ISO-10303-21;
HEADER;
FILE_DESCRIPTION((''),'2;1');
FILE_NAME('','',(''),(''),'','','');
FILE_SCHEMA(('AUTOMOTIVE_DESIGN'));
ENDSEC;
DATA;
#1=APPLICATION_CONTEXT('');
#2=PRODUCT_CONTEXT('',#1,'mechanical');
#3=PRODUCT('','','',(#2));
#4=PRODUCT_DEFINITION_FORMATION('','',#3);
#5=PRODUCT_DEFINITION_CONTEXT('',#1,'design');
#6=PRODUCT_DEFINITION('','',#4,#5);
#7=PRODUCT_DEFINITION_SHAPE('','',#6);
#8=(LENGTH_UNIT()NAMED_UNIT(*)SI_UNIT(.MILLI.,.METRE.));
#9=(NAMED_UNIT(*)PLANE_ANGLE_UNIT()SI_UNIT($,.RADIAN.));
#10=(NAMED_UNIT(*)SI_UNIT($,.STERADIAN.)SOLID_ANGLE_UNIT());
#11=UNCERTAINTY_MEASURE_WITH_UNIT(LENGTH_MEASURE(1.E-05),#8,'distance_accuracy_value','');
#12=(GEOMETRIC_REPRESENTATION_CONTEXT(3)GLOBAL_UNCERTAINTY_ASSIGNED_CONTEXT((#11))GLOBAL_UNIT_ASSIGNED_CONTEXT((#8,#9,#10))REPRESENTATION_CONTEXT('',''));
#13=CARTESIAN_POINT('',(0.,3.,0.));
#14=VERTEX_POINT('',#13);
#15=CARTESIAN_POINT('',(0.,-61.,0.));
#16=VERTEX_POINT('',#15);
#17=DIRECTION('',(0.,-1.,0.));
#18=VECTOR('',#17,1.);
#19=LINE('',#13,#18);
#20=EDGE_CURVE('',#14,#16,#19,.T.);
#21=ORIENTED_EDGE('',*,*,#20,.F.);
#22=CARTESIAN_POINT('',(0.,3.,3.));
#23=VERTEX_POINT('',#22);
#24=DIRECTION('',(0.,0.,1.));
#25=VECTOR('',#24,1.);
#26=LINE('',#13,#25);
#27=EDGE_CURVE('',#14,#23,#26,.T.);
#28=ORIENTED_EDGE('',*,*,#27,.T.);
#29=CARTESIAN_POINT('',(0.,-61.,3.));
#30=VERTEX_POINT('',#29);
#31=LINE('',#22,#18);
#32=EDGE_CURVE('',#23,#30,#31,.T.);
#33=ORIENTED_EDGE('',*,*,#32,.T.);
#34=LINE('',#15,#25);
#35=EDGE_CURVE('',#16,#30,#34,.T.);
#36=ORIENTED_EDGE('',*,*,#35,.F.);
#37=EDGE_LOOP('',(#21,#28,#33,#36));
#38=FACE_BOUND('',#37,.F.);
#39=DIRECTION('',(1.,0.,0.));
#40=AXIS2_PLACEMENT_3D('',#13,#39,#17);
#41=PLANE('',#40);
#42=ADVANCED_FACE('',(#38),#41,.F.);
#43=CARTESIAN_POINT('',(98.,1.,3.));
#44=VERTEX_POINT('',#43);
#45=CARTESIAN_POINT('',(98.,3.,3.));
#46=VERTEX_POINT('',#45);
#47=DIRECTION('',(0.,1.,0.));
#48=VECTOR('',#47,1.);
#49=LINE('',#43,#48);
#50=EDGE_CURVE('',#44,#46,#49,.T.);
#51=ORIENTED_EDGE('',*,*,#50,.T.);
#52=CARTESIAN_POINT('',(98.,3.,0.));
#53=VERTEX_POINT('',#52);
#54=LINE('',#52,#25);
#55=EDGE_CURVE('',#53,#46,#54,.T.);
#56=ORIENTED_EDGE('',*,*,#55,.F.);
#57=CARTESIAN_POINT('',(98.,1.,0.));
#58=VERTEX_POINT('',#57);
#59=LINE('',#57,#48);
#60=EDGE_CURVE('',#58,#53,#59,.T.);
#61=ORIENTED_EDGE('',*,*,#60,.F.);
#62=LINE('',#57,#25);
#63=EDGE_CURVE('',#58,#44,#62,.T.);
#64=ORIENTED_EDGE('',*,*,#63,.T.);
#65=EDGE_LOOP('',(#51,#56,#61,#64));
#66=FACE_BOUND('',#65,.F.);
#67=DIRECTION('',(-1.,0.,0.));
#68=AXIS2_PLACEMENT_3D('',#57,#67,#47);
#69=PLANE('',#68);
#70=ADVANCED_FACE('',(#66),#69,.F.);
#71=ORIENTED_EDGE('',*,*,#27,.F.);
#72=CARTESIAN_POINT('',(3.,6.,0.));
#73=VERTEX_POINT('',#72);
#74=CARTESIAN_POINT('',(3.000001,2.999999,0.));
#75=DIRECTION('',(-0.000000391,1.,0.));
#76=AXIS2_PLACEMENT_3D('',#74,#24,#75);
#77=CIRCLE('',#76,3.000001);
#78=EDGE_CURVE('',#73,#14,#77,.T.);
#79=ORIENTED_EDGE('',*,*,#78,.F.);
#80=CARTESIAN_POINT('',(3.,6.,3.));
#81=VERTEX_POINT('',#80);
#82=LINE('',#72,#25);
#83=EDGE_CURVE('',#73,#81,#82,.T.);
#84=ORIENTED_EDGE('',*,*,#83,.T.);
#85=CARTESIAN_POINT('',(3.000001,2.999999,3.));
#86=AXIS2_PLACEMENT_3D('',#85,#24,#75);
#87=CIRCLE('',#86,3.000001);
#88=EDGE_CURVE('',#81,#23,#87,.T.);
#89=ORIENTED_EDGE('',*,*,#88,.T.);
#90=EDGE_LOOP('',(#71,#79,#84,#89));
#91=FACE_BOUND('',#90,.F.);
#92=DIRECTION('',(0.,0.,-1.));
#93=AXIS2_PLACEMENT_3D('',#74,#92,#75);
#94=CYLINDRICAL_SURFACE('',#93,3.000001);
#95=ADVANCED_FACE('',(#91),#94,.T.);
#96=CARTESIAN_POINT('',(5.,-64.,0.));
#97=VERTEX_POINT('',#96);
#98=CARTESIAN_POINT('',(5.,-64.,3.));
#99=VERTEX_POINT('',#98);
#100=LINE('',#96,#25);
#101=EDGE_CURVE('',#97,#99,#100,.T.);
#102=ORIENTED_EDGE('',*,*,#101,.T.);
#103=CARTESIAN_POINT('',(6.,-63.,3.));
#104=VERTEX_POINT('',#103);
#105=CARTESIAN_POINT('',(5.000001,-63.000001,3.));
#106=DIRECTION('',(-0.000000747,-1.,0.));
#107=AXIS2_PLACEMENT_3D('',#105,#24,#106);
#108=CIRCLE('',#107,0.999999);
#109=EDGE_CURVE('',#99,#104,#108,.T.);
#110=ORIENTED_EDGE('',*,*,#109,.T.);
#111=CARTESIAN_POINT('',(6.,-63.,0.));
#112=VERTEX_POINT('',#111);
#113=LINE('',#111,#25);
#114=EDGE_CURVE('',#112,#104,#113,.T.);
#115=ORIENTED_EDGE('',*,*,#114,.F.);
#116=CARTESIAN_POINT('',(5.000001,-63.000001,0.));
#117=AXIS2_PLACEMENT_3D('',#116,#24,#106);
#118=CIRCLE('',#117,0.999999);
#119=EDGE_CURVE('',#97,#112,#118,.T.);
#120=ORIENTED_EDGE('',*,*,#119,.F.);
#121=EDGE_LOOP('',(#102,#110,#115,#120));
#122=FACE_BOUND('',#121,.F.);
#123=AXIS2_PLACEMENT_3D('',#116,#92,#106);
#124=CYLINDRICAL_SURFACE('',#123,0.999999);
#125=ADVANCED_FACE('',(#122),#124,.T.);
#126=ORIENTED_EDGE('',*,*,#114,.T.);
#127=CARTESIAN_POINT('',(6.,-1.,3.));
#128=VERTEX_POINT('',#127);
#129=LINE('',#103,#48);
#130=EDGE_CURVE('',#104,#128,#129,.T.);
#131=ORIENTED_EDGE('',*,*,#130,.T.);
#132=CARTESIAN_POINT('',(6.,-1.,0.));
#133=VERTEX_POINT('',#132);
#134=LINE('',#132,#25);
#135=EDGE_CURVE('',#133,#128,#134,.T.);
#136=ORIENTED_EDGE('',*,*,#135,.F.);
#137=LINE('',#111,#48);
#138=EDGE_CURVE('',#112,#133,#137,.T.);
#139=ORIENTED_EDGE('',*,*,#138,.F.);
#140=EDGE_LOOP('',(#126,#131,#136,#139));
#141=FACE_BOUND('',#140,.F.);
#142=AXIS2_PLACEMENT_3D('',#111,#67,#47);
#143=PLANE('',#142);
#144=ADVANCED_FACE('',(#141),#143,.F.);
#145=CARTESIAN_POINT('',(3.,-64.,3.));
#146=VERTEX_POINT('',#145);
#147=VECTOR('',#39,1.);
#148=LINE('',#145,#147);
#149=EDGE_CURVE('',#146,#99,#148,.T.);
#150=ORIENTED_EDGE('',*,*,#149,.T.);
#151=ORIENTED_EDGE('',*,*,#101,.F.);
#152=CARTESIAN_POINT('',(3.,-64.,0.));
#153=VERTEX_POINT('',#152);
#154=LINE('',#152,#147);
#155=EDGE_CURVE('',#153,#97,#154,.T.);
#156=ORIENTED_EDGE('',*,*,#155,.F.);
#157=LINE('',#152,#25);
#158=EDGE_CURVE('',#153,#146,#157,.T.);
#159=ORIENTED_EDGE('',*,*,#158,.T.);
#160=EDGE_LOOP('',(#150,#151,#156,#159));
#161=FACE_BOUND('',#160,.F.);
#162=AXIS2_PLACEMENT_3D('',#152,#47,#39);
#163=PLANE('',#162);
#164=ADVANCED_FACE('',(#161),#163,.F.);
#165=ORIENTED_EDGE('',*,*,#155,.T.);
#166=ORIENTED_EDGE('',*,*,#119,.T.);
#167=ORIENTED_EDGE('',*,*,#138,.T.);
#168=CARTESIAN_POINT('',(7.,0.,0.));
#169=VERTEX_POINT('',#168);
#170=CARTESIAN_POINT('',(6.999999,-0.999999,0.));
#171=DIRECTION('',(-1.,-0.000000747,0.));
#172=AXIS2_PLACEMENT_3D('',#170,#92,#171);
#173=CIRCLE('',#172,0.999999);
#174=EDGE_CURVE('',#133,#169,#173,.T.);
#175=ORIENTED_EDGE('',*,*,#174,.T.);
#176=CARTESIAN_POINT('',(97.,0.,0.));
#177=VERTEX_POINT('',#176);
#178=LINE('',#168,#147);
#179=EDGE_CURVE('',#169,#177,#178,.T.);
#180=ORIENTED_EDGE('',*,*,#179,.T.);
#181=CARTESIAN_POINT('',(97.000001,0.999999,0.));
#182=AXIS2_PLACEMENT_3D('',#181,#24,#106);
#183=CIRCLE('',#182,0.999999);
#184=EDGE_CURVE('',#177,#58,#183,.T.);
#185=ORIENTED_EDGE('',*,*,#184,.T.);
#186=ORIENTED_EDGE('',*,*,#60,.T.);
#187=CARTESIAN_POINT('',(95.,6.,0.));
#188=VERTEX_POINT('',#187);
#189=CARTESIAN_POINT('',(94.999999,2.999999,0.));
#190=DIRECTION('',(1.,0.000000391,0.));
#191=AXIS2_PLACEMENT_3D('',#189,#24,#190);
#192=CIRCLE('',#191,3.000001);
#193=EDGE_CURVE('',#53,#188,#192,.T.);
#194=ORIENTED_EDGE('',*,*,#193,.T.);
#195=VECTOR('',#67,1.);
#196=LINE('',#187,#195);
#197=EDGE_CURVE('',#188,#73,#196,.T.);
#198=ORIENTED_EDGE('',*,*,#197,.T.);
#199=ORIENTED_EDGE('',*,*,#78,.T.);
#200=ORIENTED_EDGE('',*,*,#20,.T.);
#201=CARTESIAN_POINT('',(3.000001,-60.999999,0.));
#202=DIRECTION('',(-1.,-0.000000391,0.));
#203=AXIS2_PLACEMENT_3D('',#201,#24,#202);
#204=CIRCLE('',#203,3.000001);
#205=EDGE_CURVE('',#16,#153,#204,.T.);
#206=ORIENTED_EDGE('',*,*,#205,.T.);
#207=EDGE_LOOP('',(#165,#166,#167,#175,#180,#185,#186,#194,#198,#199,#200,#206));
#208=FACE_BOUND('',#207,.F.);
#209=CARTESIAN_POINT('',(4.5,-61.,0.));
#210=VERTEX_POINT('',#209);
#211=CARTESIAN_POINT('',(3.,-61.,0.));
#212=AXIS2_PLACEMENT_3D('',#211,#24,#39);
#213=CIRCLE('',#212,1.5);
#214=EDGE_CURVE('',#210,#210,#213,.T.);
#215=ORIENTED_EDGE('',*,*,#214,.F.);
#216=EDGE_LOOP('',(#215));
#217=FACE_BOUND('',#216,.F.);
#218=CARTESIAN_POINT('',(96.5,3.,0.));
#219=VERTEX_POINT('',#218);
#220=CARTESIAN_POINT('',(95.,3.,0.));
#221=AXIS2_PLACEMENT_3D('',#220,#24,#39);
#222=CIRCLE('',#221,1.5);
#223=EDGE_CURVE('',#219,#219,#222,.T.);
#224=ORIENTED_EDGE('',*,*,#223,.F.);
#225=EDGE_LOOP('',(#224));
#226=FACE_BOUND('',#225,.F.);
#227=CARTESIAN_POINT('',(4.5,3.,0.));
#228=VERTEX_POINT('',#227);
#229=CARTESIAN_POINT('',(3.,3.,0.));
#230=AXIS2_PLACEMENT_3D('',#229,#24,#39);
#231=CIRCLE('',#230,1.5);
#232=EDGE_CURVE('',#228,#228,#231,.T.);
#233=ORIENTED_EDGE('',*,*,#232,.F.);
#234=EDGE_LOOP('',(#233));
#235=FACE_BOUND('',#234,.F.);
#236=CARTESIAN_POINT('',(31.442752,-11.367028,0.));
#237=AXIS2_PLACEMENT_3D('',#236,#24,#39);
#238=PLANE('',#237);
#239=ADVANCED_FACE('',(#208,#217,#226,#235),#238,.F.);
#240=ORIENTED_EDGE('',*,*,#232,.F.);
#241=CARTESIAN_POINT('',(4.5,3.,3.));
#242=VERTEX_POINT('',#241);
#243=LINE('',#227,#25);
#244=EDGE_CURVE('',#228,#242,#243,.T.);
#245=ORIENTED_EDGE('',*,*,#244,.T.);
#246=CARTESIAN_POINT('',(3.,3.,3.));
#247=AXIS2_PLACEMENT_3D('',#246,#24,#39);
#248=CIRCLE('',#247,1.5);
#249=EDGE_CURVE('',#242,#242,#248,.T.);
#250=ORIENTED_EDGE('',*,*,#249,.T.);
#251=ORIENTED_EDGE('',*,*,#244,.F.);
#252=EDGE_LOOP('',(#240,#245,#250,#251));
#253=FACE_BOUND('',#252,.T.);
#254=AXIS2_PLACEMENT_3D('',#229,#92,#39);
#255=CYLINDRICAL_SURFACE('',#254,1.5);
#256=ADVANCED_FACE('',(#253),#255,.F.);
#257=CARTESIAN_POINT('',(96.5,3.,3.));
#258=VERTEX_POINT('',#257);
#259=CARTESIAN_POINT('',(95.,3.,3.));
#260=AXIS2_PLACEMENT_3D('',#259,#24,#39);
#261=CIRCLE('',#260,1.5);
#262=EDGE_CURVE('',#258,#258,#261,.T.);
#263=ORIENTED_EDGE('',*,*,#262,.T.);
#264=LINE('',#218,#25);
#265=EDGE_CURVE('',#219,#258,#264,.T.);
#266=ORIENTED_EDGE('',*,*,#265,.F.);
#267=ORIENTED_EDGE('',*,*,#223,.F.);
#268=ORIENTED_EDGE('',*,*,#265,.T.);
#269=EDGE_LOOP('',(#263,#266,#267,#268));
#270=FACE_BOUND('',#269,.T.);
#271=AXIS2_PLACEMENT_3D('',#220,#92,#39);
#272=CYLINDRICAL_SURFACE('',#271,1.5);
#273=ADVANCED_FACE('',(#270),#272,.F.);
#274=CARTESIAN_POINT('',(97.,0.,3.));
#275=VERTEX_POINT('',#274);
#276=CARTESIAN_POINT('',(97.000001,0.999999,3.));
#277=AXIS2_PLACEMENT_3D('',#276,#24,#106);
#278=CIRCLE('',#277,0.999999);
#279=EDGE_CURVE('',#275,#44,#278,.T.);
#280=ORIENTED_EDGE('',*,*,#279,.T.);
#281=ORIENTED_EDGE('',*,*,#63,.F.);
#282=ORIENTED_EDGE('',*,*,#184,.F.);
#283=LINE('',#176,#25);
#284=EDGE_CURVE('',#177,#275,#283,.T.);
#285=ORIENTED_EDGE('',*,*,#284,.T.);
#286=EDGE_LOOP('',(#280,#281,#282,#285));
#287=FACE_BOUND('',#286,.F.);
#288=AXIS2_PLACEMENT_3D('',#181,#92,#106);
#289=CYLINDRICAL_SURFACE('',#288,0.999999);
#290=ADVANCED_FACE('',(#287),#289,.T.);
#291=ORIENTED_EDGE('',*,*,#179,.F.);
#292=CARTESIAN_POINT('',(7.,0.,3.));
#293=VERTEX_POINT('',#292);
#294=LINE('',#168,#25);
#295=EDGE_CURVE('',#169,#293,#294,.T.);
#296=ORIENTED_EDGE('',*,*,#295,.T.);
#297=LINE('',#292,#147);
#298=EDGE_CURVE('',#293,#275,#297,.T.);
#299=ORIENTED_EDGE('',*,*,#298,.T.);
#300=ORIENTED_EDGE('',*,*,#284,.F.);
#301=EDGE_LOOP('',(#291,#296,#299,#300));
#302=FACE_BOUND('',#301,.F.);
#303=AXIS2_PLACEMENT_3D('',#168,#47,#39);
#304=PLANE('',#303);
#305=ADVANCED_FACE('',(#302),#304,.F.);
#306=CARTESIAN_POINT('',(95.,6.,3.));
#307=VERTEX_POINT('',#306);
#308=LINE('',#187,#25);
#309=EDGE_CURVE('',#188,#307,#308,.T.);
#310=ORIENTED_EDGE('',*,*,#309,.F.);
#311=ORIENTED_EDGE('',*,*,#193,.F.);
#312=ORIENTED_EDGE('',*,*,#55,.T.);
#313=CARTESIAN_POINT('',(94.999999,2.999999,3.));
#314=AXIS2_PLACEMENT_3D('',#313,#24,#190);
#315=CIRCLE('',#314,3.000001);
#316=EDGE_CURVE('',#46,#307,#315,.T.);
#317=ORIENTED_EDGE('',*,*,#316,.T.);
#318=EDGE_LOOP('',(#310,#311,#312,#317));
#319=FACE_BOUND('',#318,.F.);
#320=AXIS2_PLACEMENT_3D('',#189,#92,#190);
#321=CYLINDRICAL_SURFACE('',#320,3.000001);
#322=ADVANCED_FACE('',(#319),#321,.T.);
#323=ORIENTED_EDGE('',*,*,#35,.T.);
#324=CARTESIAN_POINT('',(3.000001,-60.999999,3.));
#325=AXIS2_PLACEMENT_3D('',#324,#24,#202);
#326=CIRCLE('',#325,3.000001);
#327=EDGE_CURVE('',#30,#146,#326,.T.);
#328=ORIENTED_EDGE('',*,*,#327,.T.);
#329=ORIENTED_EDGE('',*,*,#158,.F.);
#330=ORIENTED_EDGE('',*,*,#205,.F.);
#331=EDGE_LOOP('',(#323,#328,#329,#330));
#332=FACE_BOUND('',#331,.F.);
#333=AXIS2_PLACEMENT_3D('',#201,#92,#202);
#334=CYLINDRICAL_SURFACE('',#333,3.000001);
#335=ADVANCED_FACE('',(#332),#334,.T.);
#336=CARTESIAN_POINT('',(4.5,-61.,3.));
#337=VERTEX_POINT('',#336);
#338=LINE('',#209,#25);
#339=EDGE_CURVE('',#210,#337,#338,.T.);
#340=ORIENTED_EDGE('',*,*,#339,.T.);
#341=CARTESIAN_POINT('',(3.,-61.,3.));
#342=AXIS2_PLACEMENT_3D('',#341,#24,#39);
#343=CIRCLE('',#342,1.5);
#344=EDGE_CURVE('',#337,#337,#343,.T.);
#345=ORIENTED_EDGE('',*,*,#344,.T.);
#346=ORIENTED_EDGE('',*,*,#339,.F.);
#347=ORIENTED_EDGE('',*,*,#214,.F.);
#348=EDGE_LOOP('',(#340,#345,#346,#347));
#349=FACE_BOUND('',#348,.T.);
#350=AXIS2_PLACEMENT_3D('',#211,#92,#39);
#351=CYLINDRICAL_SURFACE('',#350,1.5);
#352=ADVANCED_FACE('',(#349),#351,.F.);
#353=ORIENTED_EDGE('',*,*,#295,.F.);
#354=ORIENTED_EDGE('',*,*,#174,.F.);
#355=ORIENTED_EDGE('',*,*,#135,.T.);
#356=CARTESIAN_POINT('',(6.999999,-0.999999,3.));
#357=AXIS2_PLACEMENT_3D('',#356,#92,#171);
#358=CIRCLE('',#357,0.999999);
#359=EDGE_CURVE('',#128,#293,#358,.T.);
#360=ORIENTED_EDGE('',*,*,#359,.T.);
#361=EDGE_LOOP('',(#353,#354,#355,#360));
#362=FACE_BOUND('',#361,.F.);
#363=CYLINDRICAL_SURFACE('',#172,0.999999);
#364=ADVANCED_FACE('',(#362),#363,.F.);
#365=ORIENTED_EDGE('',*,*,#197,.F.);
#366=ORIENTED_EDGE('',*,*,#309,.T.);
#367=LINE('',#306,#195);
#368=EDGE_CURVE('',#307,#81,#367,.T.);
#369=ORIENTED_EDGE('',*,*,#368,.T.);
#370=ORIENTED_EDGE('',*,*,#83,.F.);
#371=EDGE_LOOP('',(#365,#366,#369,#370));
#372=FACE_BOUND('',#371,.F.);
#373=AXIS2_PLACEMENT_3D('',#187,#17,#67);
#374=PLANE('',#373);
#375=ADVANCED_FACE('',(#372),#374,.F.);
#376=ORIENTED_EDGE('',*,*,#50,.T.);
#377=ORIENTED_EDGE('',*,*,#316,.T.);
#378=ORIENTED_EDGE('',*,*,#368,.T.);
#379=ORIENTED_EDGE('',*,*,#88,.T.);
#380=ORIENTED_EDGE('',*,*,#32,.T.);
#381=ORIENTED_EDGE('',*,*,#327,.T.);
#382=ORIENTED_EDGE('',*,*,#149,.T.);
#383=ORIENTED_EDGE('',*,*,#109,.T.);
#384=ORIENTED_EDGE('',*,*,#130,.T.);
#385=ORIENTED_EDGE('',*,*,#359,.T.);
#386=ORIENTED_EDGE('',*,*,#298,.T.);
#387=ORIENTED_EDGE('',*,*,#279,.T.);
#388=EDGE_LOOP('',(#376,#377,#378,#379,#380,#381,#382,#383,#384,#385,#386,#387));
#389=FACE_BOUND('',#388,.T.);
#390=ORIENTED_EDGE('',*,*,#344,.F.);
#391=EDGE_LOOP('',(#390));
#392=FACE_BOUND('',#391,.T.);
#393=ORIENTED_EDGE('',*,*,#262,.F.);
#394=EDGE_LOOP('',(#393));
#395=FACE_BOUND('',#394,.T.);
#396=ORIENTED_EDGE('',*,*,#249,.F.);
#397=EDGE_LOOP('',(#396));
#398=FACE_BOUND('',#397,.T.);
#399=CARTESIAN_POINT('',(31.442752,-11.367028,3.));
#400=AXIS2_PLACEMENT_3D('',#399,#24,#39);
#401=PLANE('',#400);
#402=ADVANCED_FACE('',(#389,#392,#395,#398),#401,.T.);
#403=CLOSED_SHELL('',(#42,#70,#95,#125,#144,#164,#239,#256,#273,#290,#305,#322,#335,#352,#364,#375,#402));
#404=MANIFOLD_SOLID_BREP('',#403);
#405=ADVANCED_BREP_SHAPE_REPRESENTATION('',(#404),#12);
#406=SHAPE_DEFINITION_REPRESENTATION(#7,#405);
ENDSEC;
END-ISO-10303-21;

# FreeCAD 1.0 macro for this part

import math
import FreeCAD as App
import Part
import Sketcher
Q = App.Units.Quantity

doc = App.newDocument("Part")
body = doc.addObject("PartDesign::Body", "Body")

# Sketch on XY plane
sketch1 = body.newObject("Sketcher::SketchObject", "Sketch")
sketch1.AttachmentSupport = (doc.getObject("XY_Plane"), [""])
sketch1.MapMode = "FlatFace"
sketch1.addGeometry([
    Part.ArcOfCircle(Part.Circle(App.Vector(7, -1, 0), App.Vector(0, 0, 1), 1), math.radians(90), math.radians(180)),  # 0
    Part.LineSegment(App.Vector(7, 0, 0), App.Vector(97, 0, 0)),  # 1
    Part.ArcOfCircle(Part.Circle(App.Vector(97, 1, 0), App.Vector(0, 0, 1), 1), math.radians(-90), math.radians(0)),  # 2
    Part.LineSegment(App.Vector(98, 1, 0), App.Vector(98, 3, 0)),  # 3
    Part.ArcOfCircle(Part.Circle(App.Vector(95, 3, 0), App.Vector(0, 0, 1), 3), math.radians(0), math.radians(90)),  # 4
    Part.LineSegment(App.Vector(95, 6, 0), App.Vector(3, 6, 0)),  # 5
    Part.ArcOfCircle(Part.Circle(App.Vector(3, 3, 0), App.Vector(0, 0, 1), 3), math.radians(90), math.radians(180)),  # 6
    Part.LineSegment(App.Vector(0, 3, 0), App.Vector(0, -61, 0)),  # 7
    Part.ArcOfCircle(Part.Circle(App.Vector(3, -61, 0), App.Vector(0, 0, 1), 3), math.radians(-180), math.radians(-90)),  # 8
    Part.LineSegment(App.Vector(3, -64, 0), App.Vector(5, -64, 0)),  # 9
    Part.ArcOfCircle(Part.Circle(App.Vector(5, -63, 0), App.Vector(0, 0, 1), 1), math.radians(-90), math.radians(0)),  # 10
    Part.LineSegment(App.Vector(6, -63, 0), App.Vector(6, -1, 0)),  # 11
    Part.Circle(App.Vector(3, -61, 0), App.Vector(0, 0, 1), 1.5),  # 12
    Part.Circle(App.Vector(3, 3, 0), App.Vector(0, 0, 1), 1.5),  # 13
    Part.Circle(App.Vector(95, 3, 0), App.Vector(0, 0, 1), 1.5),  # 14
], False)
sketch1.addConstraint([
    Sketcher.Constraint("Tangent", 0, 1, 1, 1),
    Sketcher.Constraint("Tangent", 1, 2, 2, 1),
    Sketcher.Constraint("Tangent", 2, 2, 3, 1),
    Sketcher.Constraint("Tangent", 3, 2, 4, 1),
    Sketcher.Constraint("Tangent", 4, 2, 5, 1),
    Sketcher.Constraint("Tangent", 5, 2, 6, 1),
    Sketcher.Constraint("Tangent", 6, 2, 7, 1),
    Sketcher.Constraint("Tangent", 7, 2, 8, 1),
    Sketcher.Constraint("Tangent", 8, 2, 9, 1),
    Sketcher.Constraint("Tangent", 9, 2, 10, 1),
    Sketcher.Constraint("Tangent", 10, 2, 11, 1),
    Sketcher.Constraint("Tangent", 11, 2, 0, 2),
    Sketcher.Constraint("Horizontal", 1),
    Sketcher.Constraint("Vertical", 3),
    Sketcher.Constraint("Horizontal", 5),
    Sketcher.Constraint("Vertical", 7),
    Sketcher.Constraint("Horizontal", 9),
    Sketcher.Constraint("Vertical", 11),
    Sketcher.Constraint("Coincident", 12, 3, 8, 3),
    Sketcher.Constraint("Coincident", 13, 3, 6, 3),
    Sketcher.Constraint("Coincident", 14, 3, 4, 3),
    Sketcher.Constraint("Equal", 0, 2),
    Sketcher.Constraint("Equal", 4, 6),
    Sketcher.Constraint("Equal", 6, 8),
    Sketcher.Constraint("Equal", 2, 10),
    Sketcher.Constraint("Equal", 12, 13),
    Sketcher.Constraint("Equal", 13, 14),
    Sketcher.Constraint("PointOnObject", 0, 1, -1),
    Sketcher.Constraint("PointOnObject", 6, 2, -2),
    Sketcher.Constraint("Equal", 9, 3),
    Sketcher.Constraint("Diameter", 12, Q("3 mm")),
    Sketcher.Constraint("Radius", 0, Q("0.999999 mm")),
    Sketcher.Constraint("Radius", 4, Q("3.000001 mm")),
    Sketcher.Constraint("DistanceX", 1, 1, 1, 2, Q("90 mm")),
    Sketcher.Constraint("DistanceX", 5, 2, 5, 1, Q("92 mm")),
    Sketcher.Constraint("DistanceY", 7, 2, 7, 1, Q("64 mm")),
])
pad1 = body.newObject("PartDesign::Pad", "Pad")
pad1.Profile = sketch1
pad1.Length = 3

doc.recompute()
